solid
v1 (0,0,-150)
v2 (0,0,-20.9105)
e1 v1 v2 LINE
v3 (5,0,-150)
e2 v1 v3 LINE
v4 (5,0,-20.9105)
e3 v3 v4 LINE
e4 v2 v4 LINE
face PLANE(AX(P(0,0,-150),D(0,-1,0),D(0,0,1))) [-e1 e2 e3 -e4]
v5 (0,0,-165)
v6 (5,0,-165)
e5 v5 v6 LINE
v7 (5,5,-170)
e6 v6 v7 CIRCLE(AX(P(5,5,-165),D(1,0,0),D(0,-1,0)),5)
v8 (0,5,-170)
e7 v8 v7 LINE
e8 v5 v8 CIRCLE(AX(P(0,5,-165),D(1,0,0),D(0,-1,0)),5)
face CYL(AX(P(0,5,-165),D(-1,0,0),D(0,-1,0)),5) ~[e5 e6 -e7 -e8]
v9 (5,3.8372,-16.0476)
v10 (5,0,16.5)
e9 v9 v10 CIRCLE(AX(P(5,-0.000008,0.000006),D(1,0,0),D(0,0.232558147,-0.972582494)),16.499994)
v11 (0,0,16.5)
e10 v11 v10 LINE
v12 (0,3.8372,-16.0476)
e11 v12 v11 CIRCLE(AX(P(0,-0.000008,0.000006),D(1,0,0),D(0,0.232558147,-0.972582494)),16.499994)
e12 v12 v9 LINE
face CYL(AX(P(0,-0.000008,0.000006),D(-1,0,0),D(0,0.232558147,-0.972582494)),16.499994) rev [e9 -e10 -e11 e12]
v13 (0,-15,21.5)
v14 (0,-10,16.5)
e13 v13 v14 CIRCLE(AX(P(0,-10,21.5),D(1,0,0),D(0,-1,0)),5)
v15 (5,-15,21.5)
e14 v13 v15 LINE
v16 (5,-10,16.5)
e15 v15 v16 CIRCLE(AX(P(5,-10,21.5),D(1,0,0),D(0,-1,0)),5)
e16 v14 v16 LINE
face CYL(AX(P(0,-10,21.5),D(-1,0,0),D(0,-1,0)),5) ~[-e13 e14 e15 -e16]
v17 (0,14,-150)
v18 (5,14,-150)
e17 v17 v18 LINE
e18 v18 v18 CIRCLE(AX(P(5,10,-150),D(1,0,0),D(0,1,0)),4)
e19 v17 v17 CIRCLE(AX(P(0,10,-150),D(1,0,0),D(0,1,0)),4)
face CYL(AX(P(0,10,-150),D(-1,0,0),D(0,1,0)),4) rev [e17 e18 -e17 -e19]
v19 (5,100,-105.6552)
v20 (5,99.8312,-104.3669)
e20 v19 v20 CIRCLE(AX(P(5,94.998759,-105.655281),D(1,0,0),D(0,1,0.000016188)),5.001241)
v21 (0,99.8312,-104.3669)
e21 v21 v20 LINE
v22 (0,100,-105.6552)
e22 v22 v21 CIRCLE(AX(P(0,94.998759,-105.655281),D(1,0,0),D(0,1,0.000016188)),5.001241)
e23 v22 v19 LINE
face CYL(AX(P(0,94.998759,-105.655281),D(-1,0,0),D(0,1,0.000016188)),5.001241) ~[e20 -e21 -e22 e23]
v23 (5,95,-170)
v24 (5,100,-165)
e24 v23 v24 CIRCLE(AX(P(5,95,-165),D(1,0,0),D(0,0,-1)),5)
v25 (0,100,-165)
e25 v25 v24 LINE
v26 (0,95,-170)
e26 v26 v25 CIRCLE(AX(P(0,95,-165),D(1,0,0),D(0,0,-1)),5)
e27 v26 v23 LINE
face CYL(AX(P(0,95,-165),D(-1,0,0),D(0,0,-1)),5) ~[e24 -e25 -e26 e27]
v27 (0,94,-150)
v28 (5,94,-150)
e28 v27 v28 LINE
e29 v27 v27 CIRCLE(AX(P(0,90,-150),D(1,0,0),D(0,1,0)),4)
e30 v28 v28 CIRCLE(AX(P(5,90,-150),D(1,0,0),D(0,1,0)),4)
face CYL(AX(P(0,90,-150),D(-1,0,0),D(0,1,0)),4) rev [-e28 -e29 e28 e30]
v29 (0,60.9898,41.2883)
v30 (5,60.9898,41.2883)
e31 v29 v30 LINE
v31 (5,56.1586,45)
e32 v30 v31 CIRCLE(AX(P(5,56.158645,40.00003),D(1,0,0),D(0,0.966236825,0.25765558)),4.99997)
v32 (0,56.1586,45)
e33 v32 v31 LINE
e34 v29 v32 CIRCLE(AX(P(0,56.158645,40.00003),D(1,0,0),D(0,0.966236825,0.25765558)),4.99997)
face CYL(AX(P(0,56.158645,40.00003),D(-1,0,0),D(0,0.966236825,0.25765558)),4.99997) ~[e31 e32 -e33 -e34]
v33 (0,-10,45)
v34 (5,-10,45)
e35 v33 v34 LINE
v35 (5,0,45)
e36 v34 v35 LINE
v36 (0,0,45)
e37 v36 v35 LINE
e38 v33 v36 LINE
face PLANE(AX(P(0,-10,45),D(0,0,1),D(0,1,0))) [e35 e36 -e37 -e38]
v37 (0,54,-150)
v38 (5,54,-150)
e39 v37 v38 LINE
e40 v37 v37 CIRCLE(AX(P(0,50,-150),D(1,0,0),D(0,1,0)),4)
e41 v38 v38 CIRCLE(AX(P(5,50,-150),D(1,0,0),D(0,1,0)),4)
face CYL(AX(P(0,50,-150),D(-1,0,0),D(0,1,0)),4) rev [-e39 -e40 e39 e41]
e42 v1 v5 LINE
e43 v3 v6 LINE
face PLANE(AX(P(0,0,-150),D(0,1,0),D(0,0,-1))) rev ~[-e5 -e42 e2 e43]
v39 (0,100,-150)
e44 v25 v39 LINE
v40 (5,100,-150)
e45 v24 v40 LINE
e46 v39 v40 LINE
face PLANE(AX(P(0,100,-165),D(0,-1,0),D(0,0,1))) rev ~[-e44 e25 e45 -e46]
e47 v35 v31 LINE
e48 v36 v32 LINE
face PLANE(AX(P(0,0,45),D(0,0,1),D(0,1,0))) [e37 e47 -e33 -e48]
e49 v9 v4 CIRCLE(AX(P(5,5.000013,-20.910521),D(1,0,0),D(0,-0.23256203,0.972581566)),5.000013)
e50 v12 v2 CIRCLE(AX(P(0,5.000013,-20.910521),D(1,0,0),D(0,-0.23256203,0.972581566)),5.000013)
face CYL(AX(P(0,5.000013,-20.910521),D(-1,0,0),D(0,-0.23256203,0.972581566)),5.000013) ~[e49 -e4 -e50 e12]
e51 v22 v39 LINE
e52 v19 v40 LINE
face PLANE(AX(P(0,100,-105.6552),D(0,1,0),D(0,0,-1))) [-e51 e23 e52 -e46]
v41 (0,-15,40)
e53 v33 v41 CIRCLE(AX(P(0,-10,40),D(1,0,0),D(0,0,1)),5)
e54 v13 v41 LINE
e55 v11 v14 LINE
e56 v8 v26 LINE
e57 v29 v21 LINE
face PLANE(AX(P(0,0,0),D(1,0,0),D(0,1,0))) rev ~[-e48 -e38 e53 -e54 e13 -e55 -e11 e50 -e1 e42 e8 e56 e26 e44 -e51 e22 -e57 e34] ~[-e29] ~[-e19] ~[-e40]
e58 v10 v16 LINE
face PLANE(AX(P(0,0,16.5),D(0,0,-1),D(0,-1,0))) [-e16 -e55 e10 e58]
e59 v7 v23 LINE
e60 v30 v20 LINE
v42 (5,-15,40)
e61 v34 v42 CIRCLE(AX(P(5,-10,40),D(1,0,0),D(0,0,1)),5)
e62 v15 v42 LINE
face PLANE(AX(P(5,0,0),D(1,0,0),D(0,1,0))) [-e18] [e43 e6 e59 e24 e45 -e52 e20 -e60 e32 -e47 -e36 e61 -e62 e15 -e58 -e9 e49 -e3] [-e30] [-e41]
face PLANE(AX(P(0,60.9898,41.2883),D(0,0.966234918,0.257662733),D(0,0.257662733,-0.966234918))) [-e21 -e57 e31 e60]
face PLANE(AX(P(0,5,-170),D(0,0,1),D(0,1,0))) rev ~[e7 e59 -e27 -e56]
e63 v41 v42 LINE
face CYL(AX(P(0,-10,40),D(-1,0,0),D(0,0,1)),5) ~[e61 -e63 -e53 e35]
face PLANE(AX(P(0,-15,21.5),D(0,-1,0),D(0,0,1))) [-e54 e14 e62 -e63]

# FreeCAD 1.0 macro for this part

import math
import FreeCAD as App
import Part
import Sketcher
Q = App.Units.Quantity

doc = App.newDocument("Part")
body = doc.addObject("PartDesign::Body", "Body")

# Sketch on YZ plane
sketch1 = body.newObject("Sketcher::SketchObject", "Sketch")
sketch1.AttachmentSupport = (doc.getObject("YZ_Plane"), [""])
sketch1.MapMode = "FlatFace"
sketch1.addGeometry([
    Part.ArcOfCircle(Part.Circle(App.Vector(0, 0, 0), App.Vector(0, 0, 1), 16.499987), math.radians(-76.552295), math.radians(90)),  # 0
    Part.ArcOfCircle(Part.Circle(App.Vector(5, -20.9105, 0), App.Vector(0, 0, 1), 4.99999), math.radians(103.447864), math.radians(180)),  # 1
    Part.LineSegment(App.Vector(0, -20.9105, 0), App.Vector(0, -165, 0)),  # 2
    Part.ArcOfCircle(Part.Circle(App.Vector(5, -165, 0), App.Vector(0, 0, 1), 5), math.radians(180), math.radians(270)),  # 3
    Part.LineSegment(App.Vector(5, -170, 0), App.Vector(95, -170, 0)),  # 4
    Part.ArcOfCircle(Part.Circle(App.Vector(95, -165, 0), App.Vector(0, 0, 1), 5), math.radians(-90), math.radians(0)),  # 5
    Part.LineSegment(App.Vector(100, -165, 0), App.Vector(100, -105.6552, 0)),  # 6
    Part.ArcOfCircle(Part.Circle(App.Vector(94.998759, -105.655281, 0), App.Vector(0, 0, 1), 5.001241), math.radians(0.000927), math.radians(14.928429)),  # 7
    Part.LineSegment(App.Vector(99.8312, -104.3669, 0), App.Vector(60.9898, 41.2883, 0)),  # 8
    Part.ArcOfCircle(Part.Circle(App.Vector(56.1586, 40, 0), App.Vector(0, 0, 1), 5.000021), math.radians(14.931196), math.radians(90)),  # 9
    Part.LineSegment(App.Vector(56.1586, 45, 0), App.Vector(-10, 45, 0)),  # 10
    Part.ArcOfCircle(Part.Circle(App.Vector(-10, 40, 0), App.Vector(0, 0, 1), 5), math.radians(90), math.radians(180)),  # 11
    Part.LineSegment(App.Vector(-15, 40, 0), App.Vector(-15, 21.5, 0)),  # 12
    Part.ArcOfCircle(Part.Circle(App.Vector(-10, 21.5, 0), App.Vector(0, 0, 1), 5), math.radians(180), math.radians(270)),  # 13
    Part.LineSegment(App.Vector(-10, 16.5, 0), App.Vector(0, 16.5, 0)),  # 14
    Part.Circle(App.Vector(10, -150, 0), App.Vector(0, 0, 1), 4),  # 15
    Part.Circle(App.Vector(50, -150, 0), App.Vector(0, 0, 1), 4),  # 16
    Part.Circle(App.Vector(90, -150, 0), App.Vector(0, 0, 1), 4),  # 17
], False)
sketch1.addConstraint([
    Sketcher.Constraint("Tangent", 0, 1, 1, 1),
    Sketcher.Constraint("Tangent", 1, 2, 2, 1),
    Sketcher.Constraint("Tangent", 2, 2, 3, 1),
    Sketcher.Constraint("Tangent", 3, 2, 4, 1),
    Sketcher.Constraint("Tangent", 4, 2, 5, 1),
    Sketcher.Constraint("Tangent", 5, 2, 6, 1),
    Sketcher.Constraint("Tangent", 6, 2, 7, 1),
    Sketcher.Constraint("Tangent", 7, 2, 8, 1),
    Sketcher.Constraint("Tangent", 8, 2, 9, 1),
    Sketcher.Constraint("Tangent", 9, 2, 10, 1),
    Sketcher.Constraint("Tangent", 10, 2, 11, 1),
    Sketcher.Constraint("Tangent", 11, 2, 12, 1),
    Sketcher.Constraint("Tangent", 12, 2, 13, 1),
    Sketcher.Constraint("Tangent", 13, 2, 14, 1),
    Sketcher.Constraint("Tangent", 14, 2, 0, 2),
    Sketcher.Constraint("Vertical", 2),
    Sketcher.Constraint("Horizontal", 4),
    Sketcher.Constraint("Vertical", 6),
    Sketcher.Constraint("Horizontal", 10),
    Sketcher.Constraint("Vertical", 12),
    Sketcher.Constraint("Horizontal", 14),
    Sketcher.Constraint("Coincident", 0, 3, -1, 1),
    Sketcher.Constraint("Equal", 1, 3),
    Sketcher.Constraint("Equal", 3, 5),
    Sketcher.Constraint("Equal", 5, 9),
    Sketcher.Constraint("Equal", 9, 11),
    Sketcher.Constraint("Equal", 11, 13),
    Sketcher.Constraint("Equal", 15, 16),
    Sketcher.Constraint("Equal", 16, 17),
    Sketcher.Constraint("PointOnObject", 1, 2, -2),
    Sketcher.Constraint("Horizontal", 15, 3, 16, 3),
    Sketcher.Constraint("Horizontal", 16, 3, 17, 3),
    Sketcher.Constraint("Diameter", 15, Q("8 mm")),
    Sketcher.Constraint("Radius", 1, Q("5 mm")),
    Sketcher.Constraint("Radius", 0, Q("16.5 mm")),
    Sketcher.Constraint("DistanceX", 14, 1, 14, 2, Q("10 mm")),
    Sketcher.Constraint("DistanceY", -1, 1, 9, 3, Q("40 mm")),
    Sketcher.Constraint("DistanceX", -1, 1, 15, 3, Q("10 mm")),
    Sketcher.Constraint("DistanceY", 15, 3, -1, 1, Q("150 mm")),
    Sketcher.Constraint("DistanceX", -1, 1, 5, 2, Q("100 mm")),
    Sketcher.Constraint("DistanceY", 3, 3, 15, 3, Q("15 mm")),
    Sketcher.Constraint("DistanceX", 15, 3, 16, 3, Q("40 mm")),
    Sketcher.Constraint("DistanceX", 17, 3, 5, 3, Q("5 mm")),
    Sketcher.Constraint("Radius", 7, Q("5.0012 mm")),
    Sketcher.Constraint("DistanceX", 10, 2, 10, 1, Q("66.1586 mm")),
    Sketcher.Constraint("DistanceY", 6, 1, 6, 2, Q("59.3448 mm")),
])
pad1 = body.newObject("PartDesign::Pad", "Pad")
pad1.Profile = sketch1
pad1.Length = 5

doc.recompute()
